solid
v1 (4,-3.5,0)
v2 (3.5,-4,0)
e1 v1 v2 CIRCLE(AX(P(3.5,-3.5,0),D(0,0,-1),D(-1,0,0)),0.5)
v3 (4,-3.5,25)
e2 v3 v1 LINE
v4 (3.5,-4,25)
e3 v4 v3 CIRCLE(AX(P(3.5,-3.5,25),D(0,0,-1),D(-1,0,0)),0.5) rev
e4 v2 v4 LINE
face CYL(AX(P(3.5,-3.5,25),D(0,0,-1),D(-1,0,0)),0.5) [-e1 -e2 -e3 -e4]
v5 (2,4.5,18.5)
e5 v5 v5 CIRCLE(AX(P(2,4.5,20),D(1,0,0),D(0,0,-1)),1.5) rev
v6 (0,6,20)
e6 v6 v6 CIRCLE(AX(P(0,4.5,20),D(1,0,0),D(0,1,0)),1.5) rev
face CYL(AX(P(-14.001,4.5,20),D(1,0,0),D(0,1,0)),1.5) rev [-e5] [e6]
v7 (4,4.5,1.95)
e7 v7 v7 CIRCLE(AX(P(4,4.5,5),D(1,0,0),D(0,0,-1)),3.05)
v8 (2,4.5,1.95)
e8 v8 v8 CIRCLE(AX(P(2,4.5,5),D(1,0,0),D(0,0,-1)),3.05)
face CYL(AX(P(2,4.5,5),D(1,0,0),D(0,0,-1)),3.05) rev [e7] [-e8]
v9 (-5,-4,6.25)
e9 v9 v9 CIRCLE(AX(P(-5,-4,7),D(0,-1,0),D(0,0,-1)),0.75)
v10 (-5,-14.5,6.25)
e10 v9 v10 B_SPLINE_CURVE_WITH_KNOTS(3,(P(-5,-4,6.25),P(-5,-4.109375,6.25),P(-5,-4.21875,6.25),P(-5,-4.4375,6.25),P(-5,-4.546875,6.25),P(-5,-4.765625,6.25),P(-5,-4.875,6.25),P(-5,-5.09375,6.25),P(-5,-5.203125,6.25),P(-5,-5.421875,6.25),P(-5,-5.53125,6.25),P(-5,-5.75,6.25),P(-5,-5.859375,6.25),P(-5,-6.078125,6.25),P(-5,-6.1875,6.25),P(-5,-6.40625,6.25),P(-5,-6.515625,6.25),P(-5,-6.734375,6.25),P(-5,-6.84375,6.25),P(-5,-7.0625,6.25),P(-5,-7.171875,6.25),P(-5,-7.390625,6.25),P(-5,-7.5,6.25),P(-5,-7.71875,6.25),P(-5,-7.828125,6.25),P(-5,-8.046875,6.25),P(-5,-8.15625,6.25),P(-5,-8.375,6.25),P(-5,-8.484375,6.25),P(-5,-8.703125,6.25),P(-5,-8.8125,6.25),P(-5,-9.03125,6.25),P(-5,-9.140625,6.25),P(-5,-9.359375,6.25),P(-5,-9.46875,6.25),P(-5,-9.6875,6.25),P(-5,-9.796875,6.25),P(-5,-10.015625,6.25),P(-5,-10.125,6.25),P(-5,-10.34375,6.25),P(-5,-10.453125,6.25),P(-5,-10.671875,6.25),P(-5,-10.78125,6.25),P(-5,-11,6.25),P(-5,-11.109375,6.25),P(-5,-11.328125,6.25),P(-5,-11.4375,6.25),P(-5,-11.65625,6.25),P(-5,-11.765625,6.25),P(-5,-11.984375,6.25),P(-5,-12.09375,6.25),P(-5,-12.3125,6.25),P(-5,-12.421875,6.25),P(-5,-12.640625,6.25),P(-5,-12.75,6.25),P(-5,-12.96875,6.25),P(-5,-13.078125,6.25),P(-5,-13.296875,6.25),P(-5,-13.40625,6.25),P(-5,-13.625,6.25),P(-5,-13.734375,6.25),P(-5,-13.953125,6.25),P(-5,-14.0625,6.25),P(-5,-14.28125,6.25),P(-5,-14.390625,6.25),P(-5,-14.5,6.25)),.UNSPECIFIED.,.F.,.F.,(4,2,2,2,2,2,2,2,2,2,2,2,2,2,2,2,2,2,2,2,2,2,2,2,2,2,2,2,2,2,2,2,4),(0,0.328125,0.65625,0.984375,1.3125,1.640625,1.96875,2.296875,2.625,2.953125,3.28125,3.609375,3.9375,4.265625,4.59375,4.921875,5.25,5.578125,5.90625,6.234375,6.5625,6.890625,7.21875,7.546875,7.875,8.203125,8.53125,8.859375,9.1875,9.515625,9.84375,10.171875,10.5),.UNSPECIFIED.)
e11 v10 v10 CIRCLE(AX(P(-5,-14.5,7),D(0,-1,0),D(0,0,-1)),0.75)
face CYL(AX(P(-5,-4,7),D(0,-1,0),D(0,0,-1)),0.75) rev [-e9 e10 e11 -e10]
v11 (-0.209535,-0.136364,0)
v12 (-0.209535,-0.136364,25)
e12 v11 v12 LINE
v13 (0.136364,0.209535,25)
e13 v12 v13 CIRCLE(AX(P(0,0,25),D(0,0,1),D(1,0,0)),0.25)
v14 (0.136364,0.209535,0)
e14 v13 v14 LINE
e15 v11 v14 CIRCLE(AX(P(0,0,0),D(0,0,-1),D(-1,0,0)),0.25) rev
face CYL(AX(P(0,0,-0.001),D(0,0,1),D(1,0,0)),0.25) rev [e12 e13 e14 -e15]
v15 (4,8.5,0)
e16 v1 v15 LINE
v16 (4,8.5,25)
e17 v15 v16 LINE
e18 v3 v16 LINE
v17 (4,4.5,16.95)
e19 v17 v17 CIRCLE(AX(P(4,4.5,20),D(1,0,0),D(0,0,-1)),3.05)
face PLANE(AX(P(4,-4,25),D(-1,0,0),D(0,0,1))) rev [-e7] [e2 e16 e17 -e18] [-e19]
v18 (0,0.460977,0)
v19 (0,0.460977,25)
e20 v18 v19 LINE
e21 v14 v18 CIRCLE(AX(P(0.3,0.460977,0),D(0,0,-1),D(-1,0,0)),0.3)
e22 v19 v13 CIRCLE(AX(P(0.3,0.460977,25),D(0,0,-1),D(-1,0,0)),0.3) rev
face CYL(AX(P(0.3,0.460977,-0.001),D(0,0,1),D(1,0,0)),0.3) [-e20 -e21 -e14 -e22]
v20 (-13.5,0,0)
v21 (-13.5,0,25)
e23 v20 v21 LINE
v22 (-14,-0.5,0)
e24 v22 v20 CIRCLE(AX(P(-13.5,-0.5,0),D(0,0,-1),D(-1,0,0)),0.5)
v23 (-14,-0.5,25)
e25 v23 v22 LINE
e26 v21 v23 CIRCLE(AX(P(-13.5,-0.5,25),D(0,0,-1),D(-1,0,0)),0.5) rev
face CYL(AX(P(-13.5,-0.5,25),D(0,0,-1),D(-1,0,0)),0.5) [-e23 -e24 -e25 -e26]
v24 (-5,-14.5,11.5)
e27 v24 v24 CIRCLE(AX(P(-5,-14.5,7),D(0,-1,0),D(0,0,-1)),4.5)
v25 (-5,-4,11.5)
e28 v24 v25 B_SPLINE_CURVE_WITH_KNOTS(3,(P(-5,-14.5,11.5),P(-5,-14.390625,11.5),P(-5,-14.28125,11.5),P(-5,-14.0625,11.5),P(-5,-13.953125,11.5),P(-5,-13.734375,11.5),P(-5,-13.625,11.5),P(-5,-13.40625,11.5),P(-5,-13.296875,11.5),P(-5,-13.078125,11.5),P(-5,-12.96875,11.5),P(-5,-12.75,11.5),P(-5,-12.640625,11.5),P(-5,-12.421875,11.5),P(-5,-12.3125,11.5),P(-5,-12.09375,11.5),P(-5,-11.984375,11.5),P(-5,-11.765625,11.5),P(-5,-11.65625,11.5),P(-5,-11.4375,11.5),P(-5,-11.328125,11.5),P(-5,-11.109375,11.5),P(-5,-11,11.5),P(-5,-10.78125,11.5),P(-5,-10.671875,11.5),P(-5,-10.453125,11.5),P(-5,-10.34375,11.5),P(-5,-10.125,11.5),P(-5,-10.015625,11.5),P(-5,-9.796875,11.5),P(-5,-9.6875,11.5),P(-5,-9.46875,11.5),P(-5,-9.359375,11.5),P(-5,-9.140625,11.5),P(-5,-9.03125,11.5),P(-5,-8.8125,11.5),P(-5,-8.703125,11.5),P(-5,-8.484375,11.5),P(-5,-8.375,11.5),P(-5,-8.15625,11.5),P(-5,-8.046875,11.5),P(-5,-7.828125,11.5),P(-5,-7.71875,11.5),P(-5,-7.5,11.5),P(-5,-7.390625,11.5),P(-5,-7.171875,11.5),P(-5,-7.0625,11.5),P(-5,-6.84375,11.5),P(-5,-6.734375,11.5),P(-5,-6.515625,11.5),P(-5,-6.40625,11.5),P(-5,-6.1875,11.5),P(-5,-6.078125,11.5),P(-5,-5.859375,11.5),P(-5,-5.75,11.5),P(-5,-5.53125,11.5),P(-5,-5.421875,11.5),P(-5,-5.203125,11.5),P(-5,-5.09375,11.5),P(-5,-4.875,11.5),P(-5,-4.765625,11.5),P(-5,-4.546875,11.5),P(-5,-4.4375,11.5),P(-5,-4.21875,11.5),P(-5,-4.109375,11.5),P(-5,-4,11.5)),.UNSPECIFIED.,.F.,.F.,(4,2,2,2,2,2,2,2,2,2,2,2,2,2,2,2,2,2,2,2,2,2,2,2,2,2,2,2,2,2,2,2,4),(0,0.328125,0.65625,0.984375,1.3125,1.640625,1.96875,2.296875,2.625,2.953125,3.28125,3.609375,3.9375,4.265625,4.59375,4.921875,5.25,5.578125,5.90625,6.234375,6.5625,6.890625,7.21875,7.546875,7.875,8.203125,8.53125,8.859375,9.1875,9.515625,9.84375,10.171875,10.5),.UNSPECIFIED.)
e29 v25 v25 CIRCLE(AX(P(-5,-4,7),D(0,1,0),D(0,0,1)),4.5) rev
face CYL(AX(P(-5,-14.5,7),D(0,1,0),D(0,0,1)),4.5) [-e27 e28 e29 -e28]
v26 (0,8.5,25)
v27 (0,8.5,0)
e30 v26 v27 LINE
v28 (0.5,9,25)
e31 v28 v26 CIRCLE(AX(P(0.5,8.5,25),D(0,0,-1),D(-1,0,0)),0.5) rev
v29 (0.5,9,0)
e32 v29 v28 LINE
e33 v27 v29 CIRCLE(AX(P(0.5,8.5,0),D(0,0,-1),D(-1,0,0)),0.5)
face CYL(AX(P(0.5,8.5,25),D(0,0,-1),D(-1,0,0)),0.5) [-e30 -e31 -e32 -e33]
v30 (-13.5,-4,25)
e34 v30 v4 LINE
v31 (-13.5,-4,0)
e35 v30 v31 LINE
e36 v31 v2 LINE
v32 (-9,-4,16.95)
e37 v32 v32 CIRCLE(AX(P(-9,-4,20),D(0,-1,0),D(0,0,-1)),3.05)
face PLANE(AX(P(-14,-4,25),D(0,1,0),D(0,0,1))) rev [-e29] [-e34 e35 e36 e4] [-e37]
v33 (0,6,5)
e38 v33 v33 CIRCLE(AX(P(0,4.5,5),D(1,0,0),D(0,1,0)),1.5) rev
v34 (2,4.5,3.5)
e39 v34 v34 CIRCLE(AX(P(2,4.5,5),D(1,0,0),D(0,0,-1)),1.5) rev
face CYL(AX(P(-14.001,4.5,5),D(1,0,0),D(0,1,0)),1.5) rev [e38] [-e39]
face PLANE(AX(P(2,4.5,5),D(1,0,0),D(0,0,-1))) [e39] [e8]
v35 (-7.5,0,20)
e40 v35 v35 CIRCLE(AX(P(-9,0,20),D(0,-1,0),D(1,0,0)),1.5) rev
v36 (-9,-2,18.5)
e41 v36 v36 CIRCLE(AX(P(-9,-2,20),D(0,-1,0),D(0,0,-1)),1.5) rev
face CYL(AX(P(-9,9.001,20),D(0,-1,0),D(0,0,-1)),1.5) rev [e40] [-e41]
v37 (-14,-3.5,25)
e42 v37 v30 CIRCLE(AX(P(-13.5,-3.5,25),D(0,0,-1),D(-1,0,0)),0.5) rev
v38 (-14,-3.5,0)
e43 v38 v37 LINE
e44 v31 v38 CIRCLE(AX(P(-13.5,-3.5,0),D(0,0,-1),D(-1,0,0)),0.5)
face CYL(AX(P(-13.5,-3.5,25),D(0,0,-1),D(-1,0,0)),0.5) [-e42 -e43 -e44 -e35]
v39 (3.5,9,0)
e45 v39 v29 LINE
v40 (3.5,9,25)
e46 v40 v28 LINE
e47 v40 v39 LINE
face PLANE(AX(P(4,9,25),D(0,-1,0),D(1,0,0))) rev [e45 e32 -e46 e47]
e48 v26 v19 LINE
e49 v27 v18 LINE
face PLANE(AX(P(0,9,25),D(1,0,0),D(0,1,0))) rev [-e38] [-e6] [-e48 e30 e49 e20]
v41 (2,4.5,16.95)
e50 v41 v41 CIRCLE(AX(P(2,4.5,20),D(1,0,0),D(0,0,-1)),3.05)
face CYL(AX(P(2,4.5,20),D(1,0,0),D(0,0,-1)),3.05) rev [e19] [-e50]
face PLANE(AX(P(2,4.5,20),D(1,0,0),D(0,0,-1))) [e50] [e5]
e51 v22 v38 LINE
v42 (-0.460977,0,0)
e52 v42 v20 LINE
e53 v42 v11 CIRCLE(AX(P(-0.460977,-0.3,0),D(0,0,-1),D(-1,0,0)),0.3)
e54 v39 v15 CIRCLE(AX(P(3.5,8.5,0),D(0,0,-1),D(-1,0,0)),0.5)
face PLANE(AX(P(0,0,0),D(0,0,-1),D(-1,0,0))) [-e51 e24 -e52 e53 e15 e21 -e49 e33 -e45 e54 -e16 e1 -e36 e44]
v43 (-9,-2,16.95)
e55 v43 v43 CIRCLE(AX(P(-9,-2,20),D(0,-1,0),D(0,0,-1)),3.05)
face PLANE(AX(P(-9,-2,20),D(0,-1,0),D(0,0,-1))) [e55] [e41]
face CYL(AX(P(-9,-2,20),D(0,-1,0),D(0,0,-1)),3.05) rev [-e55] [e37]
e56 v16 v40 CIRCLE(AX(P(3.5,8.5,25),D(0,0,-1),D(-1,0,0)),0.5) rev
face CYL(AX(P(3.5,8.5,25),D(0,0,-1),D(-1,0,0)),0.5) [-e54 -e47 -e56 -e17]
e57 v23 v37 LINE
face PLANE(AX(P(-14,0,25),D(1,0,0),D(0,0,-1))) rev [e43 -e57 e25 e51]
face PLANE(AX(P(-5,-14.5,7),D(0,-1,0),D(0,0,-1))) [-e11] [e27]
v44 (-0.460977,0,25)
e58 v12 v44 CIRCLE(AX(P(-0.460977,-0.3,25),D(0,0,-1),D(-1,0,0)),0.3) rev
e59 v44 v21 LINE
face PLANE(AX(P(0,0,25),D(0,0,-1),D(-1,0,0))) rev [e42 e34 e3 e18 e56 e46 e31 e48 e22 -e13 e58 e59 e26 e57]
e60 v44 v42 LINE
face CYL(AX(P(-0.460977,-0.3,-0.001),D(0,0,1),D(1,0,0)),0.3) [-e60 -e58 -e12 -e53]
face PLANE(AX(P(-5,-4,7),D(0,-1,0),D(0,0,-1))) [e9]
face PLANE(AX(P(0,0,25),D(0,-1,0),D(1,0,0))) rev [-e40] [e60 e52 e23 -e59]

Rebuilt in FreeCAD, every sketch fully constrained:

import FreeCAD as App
import Part
import Sketcher
from FreeCAD import Vector
Q = App.Units.Quantity


def edges_at(feature, points):
    """Names of the edges that pass closest to the given points."""
    edges = feature.Shape.Edges
    near = lambda p: min(range(len(edges)), key=lambda i: edges[i].distToShape(Part.Vertex(*p))[0])
    return sorted({f"Edge{near(p) + 1}" for p in points})

doc = App.newDocument("Part")
body = doc.addObject("PartDesign::Body", "Body")

sketch1 = body.newObject("Sketcher::SketchObject", "Sketch")
sketch1.AttachmentSupport = (doc.getObject("XY_Plane"), [""])
sketch1.MapMode = "FlatFace"
sketch1.addGeometry([
    Part.LineSegment(Vector(0, 0, 0), Vector(-14, 0, 0)),
    Part.LineSegment(Vector(-14, 0, 0), Vector(-14, -4, 0)),
    Part.LineSegment(Vector(-14, -4, 0), Vector(4, -4, 0)),
    Part.LineSegment(Vector(4, -4, 0), Vector(4, 9, 0)),
    Part.LineSegment(Vector(4, 9, 0), Vector(0, 9, 0)),
    Part.LineSegment(Vector(0, 9, 0), Vector(0, 0, 0)),
], False)
sketch1.addConstraint([
    Sketcher.Constraint("Coincident", 0, 2, 1, 1),
    Sketcher.Constraint("Coincident", 1, 2, 2, 1),
    Sketcher.Constraint("Coincident", 2, 2, 3, 1),
    Sketcher.Constraint("Coincident", 3, 2, 4, 1),
    Sketcher.Constraint("Coincident", 4, 2, 5, 1),
    Sketcher.Constraint("Coincident", 5, 2, 0, 1),
    Sketcher.Constraint("Horizontal", 0),
    Sketcher.Constraint("Vertical", 1),
    Sketcher.Constraint("Horizontal", 2),
    Sketcher.Constraint("Vertical", 3),
    Sketcher.Constraint("Horizontal", 4),
    Sketcher.Constraint("Vertical", 5),
    Sketcher.Constraint("Coincident", 5, 2, -1, 1),
    Sketcher.Constraint("Equal", 4, 1),
    Sketcher.Constraint("DistanceX", 0, 2, 0, 1, Q("14 mm")),
    Sketcher.Constraint("DistanceX", 2, 1, 2, 2, Q("18 mm")),
    Sketcher.Constraint("DistanceY", 3, 1, 3, 2, Q("13 mm")),
])
pad1 = body.newObject("PartDesign::Pad", "Pad")
pad1.Profile = sketch1
pad1.Length = 25

sketch2 = body.newObject("Sketcher::SketchObject", "Sketch001")
sketch2.AttachmentSupport = (doc.getObject("XZ_Plane"), [""])
sketch2.MapMode = "FlatFace"
sketch2.AttachmentOffset = App.Placement(Vector(0, 0, 4), App.Rotation())
sketch2.addGeometry(Part.Circle(Vector(-9, 20, 0), Vector(0, 0, 1), 1.5), False)
sketch2.addConstraint([
    Sketcher.Constraint("Diameter", 0, Q("3 mm")),
    Sketcher.Constraint("DistanceX", 0, 3, -1, 1, Q("9 mm")),
    Sketcher.Constraint("DistanceY", -1, 1, 0, 3, Q("20 mm")),
])
pocket1 = body.newObject("PartDesign::Pocket", "Pocket")
pocket1.Profile = sketch2
pocket1.Type = "UpToFirst"

sketch3 = body.newObject("Sketcher::SketchObject", "Sketch002")
sketch3.AttachmentSupport = (doc.getObject("YZ_Plane"), [""])
sketch3.MapMode = "FlatFace"
sketch3.AttachmentOffset = App.Placement(Vector(0, 0, 4), App.Rotation())
sketch3.addGeometry(Part.Circle(Vector(4.5, 5, 0), Vector(0, 0, 1), 1.5), False)
sketch3.addConstraint([
    Sketcher.Constraint("Diameter", 0, Q("3 mm")),
    Sketcher.Constraint("DistanceY", -1, 1, 0, 3, Q("5 mm")),
    Sketcher.Constraint("DistanceX", -1, 1, 0, 3, Q("4.5 mm")),
])
pocket2 = body.newObject("PartDesign::Pocket", "Pocket001")
pocket2.Profile = sketch3
pocket2.Type = "UpToFirst"

sketch4 = body.newObject("Sketcher::SketchObject", "Sketch003")
sketch4.AttachmentSupport = (doc.getObject("YZ_Plane"), [""])
sketch4.MapMode = "FlatFace"
sketch4.AttachmentOffset = App.Placement(Vector(0, 0, 4), App.Rotation())
sketch4.addGeometry(Part.Circle(Vector(4.5, 20, 0), Vector(0, 0, 1), 1.5), False)
sketch4.addConstraint([
    Sketcher.Constraint("Diameter", 0, Q("3 mm")),
    Sketcher.Constraint("DistanceY", -1, 1, 0, 3, Q("20 mm")),
    Sketcher.Constraint("DistanceX", -1, 1, 0, 3, Q("4.5 mm")),
])
pocket3 = body.newObject("PartDesign::Pocket", "Pocket002")
pocket3.Profile = sketch4
pocket3.Type = "UpToFirst"

sketch5 = body.newObject("Sketcher::SketchObject", "Sketch004")
sketch5.AttachmentSupport = (doc.getObject("XY_Plane"), [""])
sketch5.MapMode = "FlatFace"
sketch5.AttachmentOffset = App.Placement(Vector(0, 0, 25), App.Rotation())
sketch5.addGeometry(Part.Circle(Vector(0, 0, 0), Vector(0, 0, 1), 0.25), False)
sketch5.addConstraint([
    Sketcher.Constraint("Coincident", 0, 3, -1, 1),
    Sketcher.Constraint("Diameter", 0, Q("0.5 mm")),
])
pocket4 = body.newObject("PartDesign::Pocket", "Pocket003")
pocket4.Profile = sketch5
pocket4.Type = "UpToFirst"
doc.recompute()

fillet = body.newObject("PartDesign::Fillet", "Fillet")
fillet.Base = (pocket4, edges_at(pocket4, [(0, 0.25, 12.5), (-0.25, 0, 12.5)]))
fillet.Radius = 0.3

sketch6 = body.newObject("Sketcher::SketchObject", "Sketch005")
sketch6.AttachmentSupport = (doc.getObject("YZ_Plane"), [""])
sketch6.MapMode = "FlatFace"
sketch6.AttachmentOffset = App.Placement(Vector(0, 0, 4), App.Rotation())
sketch6.addGeometry([
    Part.Circle(Vector(4.5, 20, 0), Vector(0, 0, 1), 3),
    Part.Circle(Vector(4.5, 5, 0), Vector(0, 0, 1), 3),
], False)
sketch6.addConstraint([
    Sketcher.Constraint("Equal", 0, 1),
    Sketcher.Constraint("Vertical", 0, 3, 1, 3),
    Sketcher.Constraint("Diameter", 0, Q("6.1 mm")),
    Sketcher.Constraint("DistanceY", -1, 1, 0, 3, Q("20 mm")),
    Sketcher.Constraint("DistanceY", -1, 1, 1, 3, Q("5 mm")),
    Sketcher.Constraint("DistanceX", -1, 1, 0, 3, Q("4.5 mm")),
])
pocket5 = body.newObject("PartDesign::Pocket", "Pocket004")
pocket5.Profile = sketch6
pocket5.Length = 2

sketch7 = body.newObject("Sketcher::SketchObject", "Sketch006")
sketch7.AttachmentSupport = (doc.getObject("XZ_Plane"), [""])
sketch7.MapMode = "FlatFace"
sketch7.AttachmentOffset = App.Placement(Vector(0, 0, 4), App.Rotation())
sketch7.addGeometry(Part.Circle(Vector(-9, 20, 0), Vector(0, 0, 1), 3), False)
sketch7.addConstraint([
    Sketcher.Constraint("Diameter", 0, Q("6.1 mm")),
    Sketcher.Constraint("DistanceX", 0, 3, -1, 1, Q("9 mm")),
    Sketcher.Constraint("DistanceY", -1, 1, 0, 3, Q("20 mm")),
])
pocket6 = body.newObject("PartDesign::Pocket", "Pocket005")
pocket6.Profile = sketch7
pocket6.Length = 2

sketch8 = body.newObject("Sketcher::SketchObject", "Sketch007")
sketch8.AttachmentSupport = (doc.getObject("XZ_Plane"), [""])
sketch8.MapMode = "FlatFace"
sketch8.AttachmentOffset = App.Placement(Vector(0, 0, 4), App.Rotation())
sketch8.addGeometry(Part.Circle(Vector(-5, 7, 0), Vector(0, 0, 1), 4.5), False)
sketch8.addConstraint([
    Sketcher.Constraint("Diameter", 0, Q("9 mm")),
    Sketcher.Constraint("DistanceX", 0, 3, -1, 1, Q("5 mm")),
    Sketcher.Constraint("DistanceY", -1, 1, 0, 3, Q("7 mm")),
])
pad2 = body.newObject("PartDesign::Pad", "Pad001")
pad2.Profile = sketch8
pad2.Length = 10.5

sketch9 = body.newObject("Sketcher::SketchObject", "Sketch008")
sketch9.AttachmentSupport = (doc.getObject("XZ_Plane"), [""])
sketch9.MapMode = "FlatFace"
sketch9.AttachmentOffset = App.Placement(Vector(0, 0, 14.5), App.Rotation())
sketch9.addGeometry(Part.Circle(Vector(-5, 7, 0), Vector(0, 0, 1), 0.8), False)
sketch9.addConstraint([
    Sketcher.Constraint("Diameter", 0, Q("1.5 mm")),
    Sketcher.Constraint("DistanceX", 0, 3, -1, 1, Q("5 mm")),
    Sketcher.Constraint("DistanceY", -1, 1, 0, 3, Q("7 mm")),
])
pocket7 = body.newObject("PartDesign::Pocket", "Pocket006")
pocket7.Profile = sketch9
pocket7.Length = 10.5
doc.recompute()

fillet2 = body.newObject("PartDesign::Fillet", "Fillet001")
fillet2.Base = (pocket7, edges_at(pocket7, [
    (0, 9, 12.5),
    (4, 9, 12.5),
    (4, -4, 12.5),
    (-14, -4, 12.5),
    (-14, 0, 12.5),
]))
fillet2.Radius = 0.5

doc.recompute()
